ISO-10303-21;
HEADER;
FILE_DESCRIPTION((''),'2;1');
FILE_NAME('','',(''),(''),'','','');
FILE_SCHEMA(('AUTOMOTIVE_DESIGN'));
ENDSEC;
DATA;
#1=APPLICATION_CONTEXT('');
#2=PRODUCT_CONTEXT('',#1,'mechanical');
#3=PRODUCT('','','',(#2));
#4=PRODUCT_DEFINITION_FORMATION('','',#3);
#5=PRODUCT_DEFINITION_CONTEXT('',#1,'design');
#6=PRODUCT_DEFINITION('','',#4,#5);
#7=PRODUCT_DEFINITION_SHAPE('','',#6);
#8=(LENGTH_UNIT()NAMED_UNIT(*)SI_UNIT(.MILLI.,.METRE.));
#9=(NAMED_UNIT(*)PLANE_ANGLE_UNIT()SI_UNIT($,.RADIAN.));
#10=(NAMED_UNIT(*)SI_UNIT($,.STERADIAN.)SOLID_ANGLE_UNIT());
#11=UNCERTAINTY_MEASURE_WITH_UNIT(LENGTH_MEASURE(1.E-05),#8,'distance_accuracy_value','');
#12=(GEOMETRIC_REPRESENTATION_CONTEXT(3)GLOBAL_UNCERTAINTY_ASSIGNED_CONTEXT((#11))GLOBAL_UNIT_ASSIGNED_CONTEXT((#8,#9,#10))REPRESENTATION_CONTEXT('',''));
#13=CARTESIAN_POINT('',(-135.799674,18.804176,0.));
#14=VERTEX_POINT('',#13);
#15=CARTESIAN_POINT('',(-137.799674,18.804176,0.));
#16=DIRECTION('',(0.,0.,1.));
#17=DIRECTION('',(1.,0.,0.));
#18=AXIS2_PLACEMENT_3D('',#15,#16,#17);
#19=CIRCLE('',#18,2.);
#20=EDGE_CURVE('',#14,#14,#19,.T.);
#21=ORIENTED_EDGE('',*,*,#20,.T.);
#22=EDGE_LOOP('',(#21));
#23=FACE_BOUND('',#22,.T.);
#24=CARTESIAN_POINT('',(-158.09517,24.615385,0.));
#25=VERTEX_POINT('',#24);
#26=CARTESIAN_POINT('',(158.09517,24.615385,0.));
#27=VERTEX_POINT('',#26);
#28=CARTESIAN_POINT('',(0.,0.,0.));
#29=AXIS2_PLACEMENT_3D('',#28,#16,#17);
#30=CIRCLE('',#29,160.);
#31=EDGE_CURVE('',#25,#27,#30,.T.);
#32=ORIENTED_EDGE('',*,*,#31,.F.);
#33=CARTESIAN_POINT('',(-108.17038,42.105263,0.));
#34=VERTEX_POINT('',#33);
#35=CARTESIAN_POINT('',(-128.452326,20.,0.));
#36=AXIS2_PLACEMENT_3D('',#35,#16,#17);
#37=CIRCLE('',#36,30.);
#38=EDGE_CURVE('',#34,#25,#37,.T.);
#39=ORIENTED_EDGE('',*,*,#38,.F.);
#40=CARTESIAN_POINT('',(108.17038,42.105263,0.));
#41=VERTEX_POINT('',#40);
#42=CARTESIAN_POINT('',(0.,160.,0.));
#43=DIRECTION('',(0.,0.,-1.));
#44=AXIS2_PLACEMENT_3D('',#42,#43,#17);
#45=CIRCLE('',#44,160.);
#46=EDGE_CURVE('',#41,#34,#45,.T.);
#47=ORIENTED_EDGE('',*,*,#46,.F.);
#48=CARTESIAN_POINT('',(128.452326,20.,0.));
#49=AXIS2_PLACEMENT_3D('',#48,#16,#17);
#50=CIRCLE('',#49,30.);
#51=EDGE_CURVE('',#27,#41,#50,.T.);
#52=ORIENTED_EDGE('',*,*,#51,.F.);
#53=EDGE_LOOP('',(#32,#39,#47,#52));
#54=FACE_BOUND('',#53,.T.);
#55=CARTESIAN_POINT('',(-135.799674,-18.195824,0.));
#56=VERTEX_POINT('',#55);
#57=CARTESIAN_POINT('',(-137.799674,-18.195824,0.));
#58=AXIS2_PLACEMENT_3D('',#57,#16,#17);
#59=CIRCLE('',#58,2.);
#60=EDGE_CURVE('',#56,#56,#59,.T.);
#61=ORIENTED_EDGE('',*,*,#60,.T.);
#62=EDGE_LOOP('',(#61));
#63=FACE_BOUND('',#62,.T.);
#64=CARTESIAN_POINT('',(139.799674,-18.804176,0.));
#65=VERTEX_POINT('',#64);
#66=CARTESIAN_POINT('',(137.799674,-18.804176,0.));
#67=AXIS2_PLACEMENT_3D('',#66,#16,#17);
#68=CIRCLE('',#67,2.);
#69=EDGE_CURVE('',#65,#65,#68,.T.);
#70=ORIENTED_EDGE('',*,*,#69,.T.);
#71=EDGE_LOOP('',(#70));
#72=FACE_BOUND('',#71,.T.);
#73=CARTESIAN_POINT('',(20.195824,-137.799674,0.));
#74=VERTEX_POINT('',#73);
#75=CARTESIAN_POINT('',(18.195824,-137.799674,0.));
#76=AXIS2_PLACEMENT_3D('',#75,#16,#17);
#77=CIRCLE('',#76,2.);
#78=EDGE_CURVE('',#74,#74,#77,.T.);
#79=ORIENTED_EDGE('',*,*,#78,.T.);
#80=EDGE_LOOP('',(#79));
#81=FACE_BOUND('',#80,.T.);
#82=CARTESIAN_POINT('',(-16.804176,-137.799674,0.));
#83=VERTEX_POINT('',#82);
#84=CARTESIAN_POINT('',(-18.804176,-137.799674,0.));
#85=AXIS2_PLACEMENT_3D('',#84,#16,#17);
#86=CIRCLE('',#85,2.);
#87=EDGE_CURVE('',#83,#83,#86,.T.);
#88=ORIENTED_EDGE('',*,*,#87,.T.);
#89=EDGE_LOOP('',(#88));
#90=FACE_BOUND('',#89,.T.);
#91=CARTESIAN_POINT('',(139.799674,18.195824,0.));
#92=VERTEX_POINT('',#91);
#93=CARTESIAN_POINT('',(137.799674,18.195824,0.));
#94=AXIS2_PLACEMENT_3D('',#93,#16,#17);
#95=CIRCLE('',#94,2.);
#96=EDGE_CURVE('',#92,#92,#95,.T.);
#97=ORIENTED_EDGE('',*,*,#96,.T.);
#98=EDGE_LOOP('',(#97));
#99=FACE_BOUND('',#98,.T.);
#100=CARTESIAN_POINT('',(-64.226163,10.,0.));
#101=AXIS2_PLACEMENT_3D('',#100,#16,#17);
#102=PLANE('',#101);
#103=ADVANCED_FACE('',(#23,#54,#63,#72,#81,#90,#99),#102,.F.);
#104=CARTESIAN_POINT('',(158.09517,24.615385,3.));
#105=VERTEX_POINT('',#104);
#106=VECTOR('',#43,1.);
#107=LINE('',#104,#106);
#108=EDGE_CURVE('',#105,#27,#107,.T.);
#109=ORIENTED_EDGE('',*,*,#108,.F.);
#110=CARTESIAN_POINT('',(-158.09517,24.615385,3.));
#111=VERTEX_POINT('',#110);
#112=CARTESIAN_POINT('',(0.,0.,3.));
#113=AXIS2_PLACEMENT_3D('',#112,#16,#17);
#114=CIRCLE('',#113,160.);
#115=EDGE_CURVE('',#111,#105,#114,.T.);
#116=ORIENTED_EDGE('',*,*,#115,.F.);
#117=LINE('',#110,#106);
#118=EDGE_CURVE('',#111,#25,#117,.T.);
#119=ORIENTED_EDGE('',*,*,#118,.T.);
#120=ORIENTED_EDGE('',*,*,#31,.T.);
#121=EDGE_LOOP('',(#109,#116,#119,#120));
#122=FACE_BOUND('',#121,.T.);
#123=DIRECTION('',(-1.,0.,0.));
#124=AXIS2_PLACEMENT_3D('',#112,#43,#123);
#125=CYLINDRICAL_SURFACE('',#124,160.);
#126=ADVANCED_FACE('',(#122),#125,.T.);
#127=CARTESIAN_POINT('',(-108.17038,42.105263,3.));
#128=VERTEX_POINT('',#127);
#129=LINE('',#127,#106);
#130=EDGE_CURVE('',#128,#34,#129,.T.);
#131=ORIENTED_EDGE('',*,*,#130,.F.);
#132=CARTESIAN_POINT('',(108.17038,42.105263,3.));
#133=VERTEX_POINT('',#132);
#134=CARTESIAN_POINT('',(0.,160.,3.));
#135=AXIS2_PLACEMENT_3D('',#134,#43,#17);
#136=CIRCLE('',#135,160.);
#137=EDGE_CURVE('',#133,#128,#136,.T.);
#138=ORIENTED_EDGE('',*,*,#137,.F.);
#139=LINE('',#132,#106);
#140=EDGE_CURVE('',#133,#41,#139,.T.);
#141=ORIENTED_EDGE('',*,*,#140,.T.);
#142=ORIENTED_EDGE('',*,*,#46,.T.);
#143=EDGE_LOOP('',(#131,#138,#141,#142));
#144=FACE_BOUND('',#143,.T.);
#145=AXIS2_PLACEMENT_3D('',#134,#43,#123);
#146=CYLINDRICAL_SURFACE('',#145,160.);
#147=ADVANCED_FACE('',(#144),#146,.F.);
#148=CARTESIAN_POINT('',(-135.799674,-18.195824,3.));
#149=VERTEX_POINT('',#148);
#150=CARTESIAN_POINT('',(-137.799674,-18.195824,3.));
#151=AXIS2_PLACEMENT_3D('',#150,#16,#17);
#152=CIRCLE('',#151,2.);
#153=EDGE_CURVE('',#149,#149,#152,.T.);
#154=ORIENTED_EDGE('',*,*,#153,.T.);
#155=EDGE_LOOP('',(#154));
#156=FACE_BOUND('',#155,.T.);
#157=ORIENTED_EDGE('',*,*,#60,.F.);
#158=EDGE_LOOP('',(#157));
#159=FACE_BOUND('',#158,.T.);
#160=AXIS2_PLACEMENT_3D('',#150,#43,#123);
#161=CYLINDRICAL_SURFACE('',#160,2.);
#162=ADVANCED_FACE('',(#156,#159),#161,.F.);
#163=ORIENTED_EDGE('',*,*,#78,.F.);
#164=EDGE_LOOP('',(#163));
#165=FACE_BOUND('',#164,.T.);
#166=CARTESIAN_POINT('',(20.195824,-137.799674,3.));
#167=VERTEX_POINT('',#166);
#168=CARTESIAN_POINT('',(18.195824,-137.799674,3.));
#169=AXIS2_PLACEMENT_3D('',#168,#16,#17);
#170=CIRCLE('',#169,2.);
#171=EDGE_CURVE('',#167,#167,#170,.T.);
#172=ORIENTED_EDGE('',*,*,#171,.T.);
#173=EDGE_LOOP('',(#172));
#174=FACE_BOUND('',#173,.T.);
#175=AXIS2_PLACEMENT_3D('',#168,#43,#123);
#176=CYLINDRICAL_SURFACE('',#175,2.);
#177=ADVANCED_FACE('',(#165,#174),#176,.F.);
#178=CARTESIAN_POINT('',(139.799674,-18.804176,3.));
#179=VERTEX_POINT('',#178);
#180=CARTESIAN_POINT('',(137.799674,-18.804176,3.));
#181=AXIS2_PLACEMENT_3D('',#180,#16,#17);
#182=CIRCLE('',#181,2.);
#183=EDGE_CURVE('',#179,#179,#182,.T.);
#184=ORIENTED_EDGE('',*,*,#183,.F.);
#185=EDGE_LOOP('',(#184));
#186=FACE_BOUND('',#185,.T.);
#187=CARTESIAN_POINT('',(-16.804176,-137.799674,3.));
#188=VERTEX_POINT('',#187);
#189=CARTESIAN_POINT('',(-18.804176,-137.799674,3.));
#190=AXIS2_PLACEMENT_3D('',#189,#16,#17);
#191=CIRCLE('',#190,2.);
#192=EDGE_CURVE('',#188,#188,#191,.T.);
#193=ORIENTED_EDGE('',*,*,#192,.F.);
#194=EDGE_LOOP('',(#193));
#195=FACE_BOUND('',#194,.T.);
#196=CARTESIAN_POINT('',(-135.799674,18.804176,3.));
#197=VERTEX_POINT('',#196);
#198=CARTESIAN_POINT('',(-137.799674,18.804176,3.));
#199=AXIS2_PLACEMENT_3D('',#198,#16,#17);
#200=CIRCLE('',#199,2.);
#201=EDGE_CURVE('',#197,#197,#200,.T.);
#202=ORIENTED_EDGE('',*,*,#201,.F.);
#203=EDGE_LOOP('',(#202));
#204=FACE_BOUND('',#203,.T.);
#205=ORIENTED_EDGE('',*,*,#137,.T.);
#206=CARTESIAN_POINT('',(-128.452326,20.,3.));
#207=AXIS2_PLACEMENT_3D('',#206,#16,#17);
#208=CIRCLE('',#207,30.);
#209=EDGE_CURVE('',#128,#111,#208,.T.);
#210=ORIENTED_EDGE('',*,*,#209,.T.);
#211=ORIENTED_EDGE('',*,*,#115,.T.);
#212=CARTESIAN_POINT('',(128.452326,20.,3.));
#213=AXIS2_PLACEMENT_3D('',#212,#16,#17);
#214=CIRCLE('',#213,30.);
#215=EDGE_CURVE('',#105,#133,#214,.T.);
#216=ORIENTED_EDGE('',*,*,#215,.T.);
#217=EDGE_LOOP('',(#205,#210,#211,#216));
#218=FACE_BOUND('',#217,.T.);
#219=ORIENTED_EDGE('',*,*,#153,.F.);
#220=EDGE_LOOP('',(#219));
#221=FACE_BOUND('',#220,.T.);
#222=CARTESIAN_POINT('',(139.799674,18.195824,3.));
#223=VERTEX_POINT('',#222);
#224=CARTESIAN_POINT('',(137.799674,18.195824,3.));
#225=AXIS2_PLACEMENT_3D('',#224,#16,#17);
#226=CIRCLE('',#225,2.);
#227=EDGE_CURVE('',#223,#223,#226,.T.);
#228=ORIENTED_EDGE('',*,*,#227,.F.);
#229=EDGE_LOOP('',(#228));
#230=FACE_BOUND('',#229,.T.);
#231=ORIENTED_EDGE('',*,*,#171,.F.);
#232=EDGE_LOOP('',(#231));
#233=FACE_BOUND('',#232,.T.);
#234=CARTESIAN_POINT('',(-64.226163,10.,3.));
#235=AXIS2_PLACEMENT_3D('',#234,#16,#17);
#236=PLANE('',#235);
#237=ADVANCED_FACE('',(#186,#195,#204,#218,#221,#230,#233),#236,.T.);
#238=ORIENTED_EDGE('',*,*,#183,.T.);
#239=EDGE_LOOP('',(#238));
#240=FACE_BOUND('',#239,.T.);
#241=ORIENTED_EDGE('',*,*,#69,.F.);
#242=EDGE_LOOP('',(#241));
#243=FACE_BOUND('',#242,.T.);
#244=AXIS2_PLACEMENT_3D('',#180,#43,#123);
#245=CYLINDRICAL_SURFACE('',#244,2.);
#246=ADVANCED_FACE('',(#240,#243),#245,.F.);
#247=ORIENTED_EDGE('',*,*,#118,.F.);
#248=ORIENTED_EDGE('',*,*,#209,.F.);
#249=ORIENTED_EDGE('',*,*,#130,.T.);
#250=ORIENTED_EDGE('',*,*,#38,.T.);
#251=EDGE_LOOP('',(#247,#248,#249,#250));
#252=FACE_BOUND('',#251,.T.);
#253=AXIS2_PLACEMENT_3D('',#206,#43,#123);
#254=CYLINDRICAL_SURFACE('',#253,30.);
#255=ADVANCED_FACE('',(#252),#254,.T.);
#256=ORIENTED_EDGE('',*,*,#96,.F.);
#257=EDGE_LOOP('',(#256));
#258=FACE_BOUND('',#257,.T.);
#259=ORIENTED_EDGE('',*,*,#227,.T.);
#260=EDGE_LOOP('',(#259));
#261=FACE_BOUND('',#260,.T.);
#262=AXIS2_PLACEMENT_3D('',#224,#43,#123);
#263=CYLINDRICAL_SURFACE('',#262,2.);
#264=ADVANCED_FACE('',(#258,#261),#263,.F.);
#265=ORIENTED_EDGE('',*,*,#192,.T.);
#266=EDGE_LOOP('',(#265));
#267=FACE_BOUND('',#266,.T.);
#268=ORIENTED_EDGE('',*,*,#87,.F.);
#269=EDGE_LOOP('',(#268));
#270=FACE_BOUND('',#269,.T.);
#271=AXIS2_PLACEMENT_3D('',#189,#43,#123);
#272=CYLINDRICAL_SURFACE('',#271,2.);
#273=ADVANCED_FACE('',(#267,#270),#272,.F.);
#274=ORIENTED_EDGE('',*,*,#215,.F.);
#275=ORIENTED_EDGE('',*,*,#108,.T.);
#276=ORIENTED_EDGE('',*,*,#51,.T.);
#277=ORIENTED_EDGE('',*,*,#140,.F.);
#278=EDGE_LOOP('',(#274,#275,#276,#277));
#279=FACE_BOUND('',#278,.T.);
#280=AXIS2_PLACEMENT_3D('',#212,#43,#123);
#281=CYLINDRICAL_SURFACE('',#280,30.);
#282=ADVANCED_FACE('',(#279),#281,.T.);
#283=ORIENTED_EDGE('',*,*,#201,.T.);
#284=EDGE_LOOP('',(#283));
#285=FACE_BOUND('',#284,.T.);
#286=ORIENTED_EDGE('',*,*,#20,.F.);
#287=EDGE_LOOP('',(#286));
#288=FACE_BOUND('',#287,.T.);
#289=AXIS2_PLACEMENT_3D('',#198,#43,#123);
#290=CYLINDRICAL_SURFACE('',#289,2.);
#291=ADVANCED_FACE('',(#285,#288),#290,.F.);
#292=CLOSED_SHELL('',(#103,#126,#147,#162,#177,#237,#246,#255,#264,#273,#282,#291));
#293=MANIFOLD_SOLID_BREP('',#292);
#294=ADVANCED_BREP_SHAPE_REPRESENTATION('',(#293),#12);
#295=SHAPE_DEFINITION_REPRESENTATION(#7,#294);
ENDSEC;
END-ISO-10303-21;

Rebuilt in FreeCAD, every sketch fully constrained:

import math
import FreeCAD as App
import Part
import Sketcher
from FreeCAD import Vector
Q = App.Units.Quantity

doc = App.newDocument("Part")
body = doc.addObject("PartDesign::Body", "Body")

# Sketch on XY plane
sketch1 = doc.addObject("Sketcher::SketchObject", "Sketch")
body.addObject(sketch1)
sketch1.AttachmentSupport = (doc.XY_Plane, [""])
sketch1.MapMode = "FlatFace"
sketch1.addGeometry(Part.ArcOfCircle(Part.Circle(Vector(0, 0, 0), Vector(0, 0, 1), 160), math.radians(171), math.radians(369)), False)
sketch1.addGeometry(Part.ArcOfCircle(Part.Circle(Vector(128.5, 20, 0), Vector(0, 0, 1), 30), math.radians(9), math.radians(133)), False)
sketch1.addGeometry(Part.ArcOfCircle(Part.Circle(Vector(0, 160, 0), Vector(0, 0, 1), 160), math.radians(-133), math.radians(-47)), False)
sketch1.addGeometry(Part.ArcOfCircle(Part.Circle(Vector(-128.5, 20, 0), Vector(0, 0, 1), 30), math.radians(47), math.radians(171)), False)
sketch1.addGeometry(Part.Circle(Vector(-18.8, -137.8, 0), Vector(0, 0, 1), 2), False)
sketch1.addGeometry(Part.Circle(Vector(18.2, -137.8, 0), Vector(0, 0, 1), 2), False)
sketch1.addGeometry(Part.Circle(Vector(-137.8, -18.2, 0), Vector(0, 0, 1), 2), False)
sketch1.addGeometry(Part.Circle(Vector(-137.8, 18.8, 0), Vector(0, 0, 1), 2), False)
sketch1.addGeometry(Part.Circle(Vector(137.8, -18.8, 0), Vector(0, 0, 1), 2), False)
sketch1.addGeometry(Part.Circle(Vector(137.8, 18.2, 0), Vector(0, 0, 1), 2), False)
sketch1.addConstraint(Sketcher.Constraint("Tangent", 0, 2, 1, 1))
sketch1.addConstraint(Sketcher.Constraint("Tangent", 1, 2, 2, 2))
sketch1.addConstraint(Sketcher.Constraint("Tangent", 2, 1, 3, 1))
sketch1.addConstraint(Sketcher.Constraint("Tangent", 3, 2, 0, 1))
sketch1.addConstraint(Sketcher.Constraint("Coincident", 0, 3, -1, 1))
sketch1.addConstraint(Sketcher.Constraint("Equal", 0, 2))
sketch1.addConstraint(Sketcher.Constraint("Equal", 1, 3))
sketch1.addConstraint(Sketcher.Constraint("Equal", 4, 5))
sketch1.addConstraint(Sketcher.Constraint("Equal", 5, 6))
sketch1.addConstraint(Sketcher.Constraint("Equal", 6, 7))
sketch1.addConstraint(Sketcher.Constraint("Equal", 7, 8))
sketch1.addConstraint(Sketcher.Constraint("Equal", 8, 9))
sketch1.addConstraint(Sketcher.Constraint("Symmetric", 7, 3, 8, 3, -1, 1))
sketch1.addConstraint(Sketcher.Constraint("Symmetric", 6, 3, 9, 3, -1, 1))
sketch1.addConstraint(Sketcher.Constraint("PointOnObject", 2, 3, -2))
sketch1.addConstraint(Sketcher.Constraint("Horizontal", 4, 3, 5, 3))
sketch1.addConstraint(Sketcher.Constraint("Vertical", 6, 3, 7, 3))
sketch1.addConstraint(Sketcher.Constraint("Diameter", 4, Q("4 mm")))
sketch1.addConstraint(Sketcher.Constraint("Radius", 0, Q("160 mm")))
sketch1.addConstraint(Sketcher.Constraint("Radius", 1, Q("30 mm")))
sketch1.addConstraint(Sketcher.Constraint("DistanceY", -1, 1, 1, 3, Q("20 mm")))
sketch1.addConstraint(Sketcher.Constraint("DistanceX", 4, 3, 5, 3, Q("37 mm")))
sketch1.addConstraint(Sketcher.Constraint("DistanceY", 6, 3, 7, 3, Q("37 mm")))
sketch1.addConstraint(Sketcher.Constraint("DistanceX", 3, 3, 4, 3, Q("109.648149 mm")))
sketch1.addConstraint(Sketcher.Constraint("DistanceX", 6, 3, 3, 3, Q("9.347349 mm")))
sketch1.addConstraint(Sketcher.Constraint("DistanceY", 4, 3, 6, 3, Q("119.603851 mm")))
sketch1.addConstraint(Sketcher.Constraint("DistanceY", 9, 3, 0, 2, Q("6.419561 mm")))
pad1 = doc.addObject("PartDesign::Pad", "Pad")
body.addObject(pad1)
pad1.Profile = sketch1
pad1.Length = 3

doc.recompute()
